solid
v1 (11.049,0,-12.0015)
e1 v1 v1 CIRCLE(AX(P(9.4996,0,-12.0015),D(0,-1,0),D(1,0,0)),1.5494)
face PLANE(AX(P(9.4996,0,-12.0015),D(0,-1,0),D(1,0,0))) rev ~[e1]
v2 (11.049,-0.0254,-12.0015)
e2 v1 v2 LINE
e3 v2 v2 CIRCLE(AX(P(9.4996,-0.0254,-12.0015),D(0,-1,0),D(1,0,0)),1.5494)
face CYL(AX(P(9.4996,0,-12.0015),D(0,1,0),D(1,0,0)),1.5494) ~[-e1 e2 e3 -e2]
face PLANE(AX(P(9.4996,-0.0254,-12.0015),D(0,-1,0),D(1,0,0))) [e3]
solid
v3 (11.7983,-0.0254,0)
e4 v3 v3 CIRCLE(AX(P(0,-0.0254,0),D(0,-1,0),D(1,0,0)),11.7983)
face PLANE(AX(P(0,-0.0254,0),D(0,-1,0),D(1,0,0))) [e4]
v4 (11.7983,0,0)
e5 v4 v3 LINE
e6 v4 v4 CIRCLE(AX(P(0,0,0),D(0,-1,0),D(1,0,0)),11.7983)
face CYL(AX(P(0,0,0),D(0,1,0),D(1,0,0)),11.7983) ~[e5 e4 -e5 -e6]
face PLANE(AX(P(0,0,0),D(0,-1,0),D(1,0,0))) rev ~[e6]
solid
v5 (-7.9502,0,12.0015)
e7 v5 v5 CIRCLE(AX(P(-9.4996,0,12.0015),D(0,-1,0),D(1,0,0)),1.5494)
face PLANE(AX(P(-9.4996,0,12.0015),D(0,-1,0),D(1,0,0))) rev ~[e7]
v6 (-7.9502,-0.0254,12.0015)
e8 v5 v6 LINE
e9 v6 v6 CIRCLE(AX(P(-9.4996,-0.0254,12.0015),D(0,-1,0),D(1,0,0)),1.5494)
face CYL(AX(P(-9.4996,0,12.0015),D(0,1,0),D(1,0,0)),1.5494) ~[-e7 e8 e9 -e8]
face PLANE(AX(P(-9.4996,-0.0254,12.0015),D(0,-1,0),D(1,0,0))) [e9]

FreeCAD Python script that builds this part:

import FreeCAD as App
import Part
import Sketcher
Q = App.Units.Quantity

doc = App.newDocument("Part")
body = doc.addObject("PartDesign::Body", "Body")
body.AllowCompound = True

# Sketch on XZ plane
sketch1 = body.newObject("Sketcher::SketchObject", "Sketch")
sketch1.AttachmentSupport = (doc.getObject("XZ_Plane"), [""])
sketch1.MapMode = "FlatFace"
sketch1.addGeometry(Part.Circle(App.Vector(0, 0, 0), App.Vector(0, 0, 1), 11.7983), False)
sketch1.addGeometry(Part.Circle(App.Vector(-9.4996, 12.0015, 0), App.Vector(0, 0, 1), 1.5494), False)
sketch1.addGeometry(Part.Circle(App.Vector(9.4996, -12.0015, 0), App.Vector(0, 0, 1), 1.5494), False)
sketch1.addConstraint(Sketcher.Constraint("Coincident", 0, 3, -1, 1))
sketch1.addConstraint(Sketcher.Constraint("Equal", 1, 2))
sketch1.addConstraint(Sketcher.Constraint("Symmetric", 1, 3, 2, 3, -1, 1))
sketch1.addConstraint(Sketcher.Constraint("Diameter", 0, Q("0.929 in")))
sketch1.addConstraint(Sketcher.Constraint("Diameter", 1, Q("0.122 in")))
sketch1.addConstraint(Sketcher.Constraint("DistanceX", 1, 3, -1, 1, Q("0.374 in")))
sketch1.addConstraint(Sketcher.Constraint("DistanceY", 2, 3, 1, 3, Q("0.945 in")))
pad1 = body.newObject("PartDesign::Pad", "Pad")
pad1.Profile = sketch1
pad1.Length = Q("0.001 in")

doc.recompute()
